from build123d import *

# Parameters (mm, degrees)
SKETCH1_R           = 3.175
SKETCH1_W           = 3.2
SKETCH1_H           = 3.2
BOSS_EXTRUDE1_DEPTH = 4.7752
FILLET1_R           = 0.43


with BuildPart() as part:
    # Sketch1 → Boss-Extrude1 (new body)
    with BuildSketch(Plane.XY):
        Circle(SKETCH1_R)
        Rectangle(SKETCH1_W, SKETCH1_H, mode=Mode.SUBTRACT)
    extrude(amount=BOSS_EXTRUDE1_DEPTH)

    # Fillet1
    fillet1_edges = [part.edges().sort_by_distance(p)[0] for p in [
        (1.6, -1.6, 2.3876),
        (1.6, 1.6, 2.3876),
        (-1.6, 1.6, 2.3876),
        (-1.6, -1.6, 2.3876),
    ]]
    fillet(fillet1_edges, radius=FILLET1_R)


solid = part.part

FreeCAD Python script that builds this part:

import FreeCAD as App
import Part
import Sketcher
from FreeCAD import Vector
Q = App.Units.Quantity


def edges_at(feature, points):
    """Names of the edges that pass closest to the given points."""
    edges = feature.Shape.Edges
    near = lambda p: min(range(len(edges)), key=lambda i: edges[i].distToShape(Part.Vertex(*p))[0])
    return sorted({f"Edge{near(p) + 1}" for p in points})

doc = App.newDocument("Part")
body = doc.addObject("PartDesign::Body", "Body")

# Sketch on XY plane
sketch1 = body.newObject("Sketcher::SketchObject", "Sketch")
sketch1.AttachmentSupport = (doc.getObject("XY_Plane"), [""])
sketch1.MapMode = "FlatFace"
sketch1.addGeometry(Part.Circle(Vector(0, 0, 0), Vector(0, 0, 1), 3.2), False)
sketch1.addGeometry(Part.LineSegment(Vector(1.6, -1.6, 0), Vector(-1.6, -1.6, 0)), False)
sketch1.addGeometry(Part.LineSegment(Vector(-1.6, -1.6, 0), Vector(-1.6, 1.6, 0)), False)
sketch1.addGeometry(Part.LineSegment(Vector(-1.6, 1.6, 0), Vector(1.6, 1.6, 0)), False)
sketch1.addGeometry(Part.LineSegment(Vector(1.6, 1.6, 0), Vector(1.6, -1.6, 0)), False)
sketch1.addConstraint(Sketcher.Constraint("Coincident", 1, 2, 2, 1))
sketch1.addConstraint(Sketcher.Constraint("Coincident", 2, 2, 3, 1))
sketch1.addConstraint(Sketcher.Constraint("Coincident", 3, 2, 4, 1))
sketch1.addConstraint(Sketcher.Constraint("Coincident", 4, 2, 1, 1))
sketch1.addConstraint(Sketcher.Constraint("Horizontal", 1))
sketch1.addConstraint(Sketcher.Constraint("Vertical", 2))
sketch1.addConstraint(Sketcher.Constraint("Horizontal", 3))
sketch1.addConstraint(Sketcher.Constraint("Vertical", 4))
sketch1.addConstraint(Sketcher.Constraint("Coincident", 0, 3, -1, 1))
sketch1.addConstraint(Sketcher.Constraint("Symmetric", 1, 2, 3, 2, -1, 1))
sketch1.addConstraint(Sketcher.Constraint("Equal", 3, 2))
sketch1.addConstraint(Sketcher.Constraint("Diameter", 0, Q("0.25 in")))
sketch1.addConstraint(Sketcher.Constraint("DistanceX", 1, 2, 1, 1, Q("3.2 mm")))
pad1 = body.newObject("PartDesign::Pad", "Pad")
pad1.Profile = sketch1
pad1.Length = Q("0.188 in")
doc.recompute()

fillet = body.newObject("PartDesign::Fillet", "Fillet")
fillet.Base = (pad1, edges_at(pad1, [
    (1.6, -1.6, 2.388),
    (1.6, 1.6, 2.388),
    (-1.6, 1.6, 2.388),
    (-1.6, -1.6, 2.388),
]))
fillet.Radius = 0.43

doc.recompute()
